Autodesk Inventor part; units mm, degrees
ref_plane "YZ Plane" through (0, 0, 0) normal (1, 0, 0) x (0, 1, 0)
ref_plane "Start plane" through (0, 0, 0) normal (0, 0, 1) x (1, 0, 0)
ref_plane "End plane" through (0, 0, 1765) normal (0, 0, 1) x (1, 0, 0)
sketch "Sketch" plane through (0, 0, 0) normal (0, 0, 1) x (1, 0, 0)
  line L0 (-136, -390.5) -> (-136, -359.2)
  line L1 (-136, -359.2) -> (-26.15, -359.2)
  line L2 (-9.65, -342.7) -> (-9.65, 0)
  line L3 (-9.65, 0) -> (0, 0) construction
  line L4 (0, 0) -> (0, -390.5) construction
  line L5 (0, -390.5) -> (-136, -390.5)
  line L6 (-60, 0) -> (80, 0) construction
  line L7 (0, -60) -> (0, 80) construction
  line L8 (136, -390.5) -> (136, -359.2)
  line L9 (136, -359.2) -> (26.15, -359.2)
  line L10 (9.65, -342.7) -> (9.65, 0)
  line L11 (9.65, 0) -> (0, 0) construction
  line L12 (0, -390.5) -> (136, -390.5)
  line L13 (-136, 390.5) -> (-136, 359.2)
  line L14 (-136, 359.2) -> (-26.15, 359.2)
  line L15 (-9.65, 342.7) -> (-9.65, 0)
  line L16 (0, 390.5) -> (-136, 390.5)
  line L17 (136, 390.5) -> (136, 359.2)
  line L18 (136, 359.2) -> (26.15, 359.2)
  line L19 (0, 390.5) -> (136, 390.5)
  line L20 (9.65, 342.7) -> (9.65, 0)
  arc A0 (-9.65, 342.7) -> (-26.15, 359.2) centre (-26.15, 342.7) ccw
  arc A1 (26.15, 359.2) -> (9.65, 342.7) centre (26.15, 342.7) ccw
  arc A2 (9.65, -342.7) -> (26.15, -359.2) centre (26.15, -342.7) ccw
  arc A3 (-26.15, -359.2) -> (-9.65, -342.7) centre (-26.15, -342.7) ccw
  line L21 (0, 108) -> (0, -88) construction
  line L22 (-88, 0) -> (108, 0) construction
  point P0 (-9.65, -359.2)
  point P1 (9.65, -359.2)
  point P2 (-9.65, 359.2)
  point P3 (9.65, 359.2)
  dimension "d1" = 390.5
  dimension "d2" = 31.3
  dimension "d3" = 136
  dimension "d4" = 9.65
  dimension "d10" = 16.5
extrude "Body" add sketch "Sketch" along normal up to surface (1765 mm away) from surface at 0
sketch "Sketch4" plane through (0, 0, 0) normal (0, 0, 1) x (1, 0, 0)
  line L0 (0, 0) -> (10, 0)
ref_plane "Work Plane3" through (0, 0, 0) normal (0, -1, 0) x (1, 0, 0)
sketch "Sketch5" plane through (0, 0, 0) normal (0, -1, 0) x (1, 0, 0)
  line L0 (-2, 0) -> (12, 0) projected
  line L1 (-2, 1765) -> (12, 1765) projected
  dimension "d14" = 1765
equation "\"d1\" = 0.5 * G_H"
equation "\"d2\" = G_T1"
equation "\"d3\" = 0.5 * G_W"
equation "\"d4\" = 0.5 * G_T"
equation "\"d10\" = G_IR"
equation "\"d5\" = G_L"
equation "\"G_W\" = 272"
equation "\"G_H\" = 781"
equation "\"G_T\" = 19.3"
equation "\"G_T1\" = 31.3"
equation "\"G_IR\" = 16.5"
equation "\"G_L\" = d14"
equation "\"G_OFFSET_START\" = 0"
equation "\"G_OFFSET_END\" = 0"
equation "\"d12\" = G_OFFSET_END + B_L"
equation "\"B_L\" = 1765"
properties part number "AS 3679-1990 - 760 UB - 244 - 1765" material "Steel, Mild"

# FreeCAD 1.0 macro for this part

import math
import FreeCAD as App
import Part
import Sketcher
Q = App.Units.Quantity

doc = App.newDocument("Part")
body = doc.addObject("PartDesign::Body", "Body")

sketch1 = doc.addObject("Sketcher::SketchObject", "Sketch")
body.addObject(sketch1)
sketch1.AttachmentSupport = (doc.XY_Plane, [""])
sketch1.MapMode = "FlatFace"
sketch1.addGeometry(Part.LineSegment(App.Vector(-136, -359, 0), App.Vector(-136, -390, 0)), False)
sketch1.addGeometry(Part.LineSegment(App.Vector(-136, -390, 0), App.Vector(136, -390, 0)), False)
sketch1.addGeometry(Part.LineSegment(App.Vector(136, -390, 0), App.Vector(136, -359, 0)), False)
sketch1.addGeometry(Part.LineSegment(App.Vector(136, -359, 0), App.Vector(26, -359, 0)), False)
sketch1.addGeometry(Part.ArcOfCircle(Part.Circle(App.Vector(26, -343, 0), App.Vector(0, 0, 1), 16), math.radians(180), math.radians(270)), False)
sketch1.addGeometry(Part.LineSegment(App.Vector(10, -343, 0), App.Vector(10, 343, 0)), False)
sketch1.addGeometry(Part.ArcOfCircle(Part.Circle(App.Vector(26, 343, 0), App.Vector(0, 0, 1), 16), math.radians(90), math.radians(180)), False)
sketch1.addGeometry(Part.LineSegment(App.Vector(26, 359, 0), App.Vector(136, 359, 0)), False)
sketch1.addGeometry(Part.LineSegment(App.Vector(136, 359, 0), App.Vector(136, 390, 0)), False)
sketch1.addGeometry(Part.LineSegment(App.Vector(136, 390, 0), App.Vector(-136, 390, 0)), False)
sketch1.addGeometry(Part.LineSegment(App.Vector(-136, 390, 0), App.Vector(-136, 359, 0)), False)
sketch1.addGeometry(Part.LineSegment(App.Vector(-136, 359, 0), App.Vector(-26, 359, 0)), False)
sketch1.addGeometry(Part.ArcOfCircle(Part.Circle(App.Vector(-26, 343, 0), App.Vector(0, 0, 1), 16), math.radians(0), math.radians(90)), False)
sketch1.addGeometry(Part.LineSegment(App.Vector(-10, 343, 0), App.Vector(-10, -343, 0)), False)
sketch1.addGeometry(Part.ArcOfCircle(Part.Circle(App.Vector(-26, -343, 0), App.Vector(0, 0, 1), 16), math.radians(-90), math.radians(0)), False)
sketch1.addGeometry(Part.LineSegment(App.Vector(-26, -359, 0), App.Vector(-136, -359, 0)), False)
sketch1.addConstraint(Sketcher.Constraint("Coincident", 0, 2, 1, 1))
sketch1.addConstraint(Sketcher.Constraint("Coincident", 1, 2, 2, 1))
sketch1.addConstraint(Sketcher.Constraint("Coincident", 2, 2, 3, 1))
sketch1.addConstraint(Sketcher.Constraint("Tangent", 3, 2, 4, 2))
sketch1.addConstraint(Sketcher.Constraint("Tangent", 4, 1, 5, 1))
sketch1.addConstraint(Sketcher.Constraint("Tangent", 5, 2, 6, 2))
sketch1.addConstraint(Sketcher.Constraint("Tangent", 6, 1, 7, 1))
sketch1.addConstraint(Sketcher.Constraint("Coincident", 7, 2, 8, 1))
sketch1.addConstraint(Sketcher.Constraint("Coincident", 8, 2, 9, 1))
sketch1.addConstraint(Sketcher.Constraint("Coincident", 9, 2, 10, 1))
sketch1.addConstraint(Sketcher.Constraint("Coincident", 10, 2, 11, 1))
sketch1.addConstraint(Sketcher.Constraint("Tangent", 11, 2, 12, 2))
sketch1.addConstraint(Sketcher.Constraint("Tangent", 12, 1, 13, 1))
sketch1.addConstraint(Sketcher.Constraint("Tangent", 13, 2, 14, 2))
sketch1.addConstraint(Sketcher.Constraint("Tangent", 14, 1, 15, 1))
sketch1.addConstraint(Sketcher.Constraint("Coincident", 15, 2, 0, 1))
sketch1.addConstraint(Sketcher.Constraint("Vertical", 0))
sketch1.addConstraint(Sketcher.Constraint("Horizontal", 1))
sketch1.addConstraint(Sketcher.Constraint("Vertical", 2))
sketch1.addConstraint(Sketcher.Constraint("Horizontal", 3))
sketch1.addConstraint(Sketcher.Constraint("Vertical", 5))
sketch1.addConstraint(Sketcher.Constraint("Horizontal", 7))
sketch1.addConstraint(Sketcher.Constraint("Vertical", 8))
sketch1.addConstraint(Sketcher.Constraint("Horizontal", 9))
sketch1.addConstraint(Sketcher.Constraint("Vertical", 10))
sketch1.addConstraint(Sketcher.Constraint("Horizontal", 11))
sketch1.addConstraint(Sketcher.Constraint("Vertical", 13))
sketch1.addConstraint(Sketcher.Constraint("Horizontal", 15))
sketch1.addConstraint(Sketcher.Constraint("Equal", 4, 6))
sketch1.addConstraint(Sketcher.Constraint("Equal", 6, 12))
sketch1.addConstraint(Sketcher.Constraint("Equal", 12, 14))
sketch1.addConstraint(Sketcher.Constraint("Symmetric", 4, 3, 12, 3, -1, 1))
sketch1.addConstraint(Sketcher.Constraint("Symmetric", 0, 2, 8, 2, -1, 1))
sketch1.addConstraint(Sketcher.Constraint("Symmetric", 7, 2, 10, 2, -2))
sketch1.addConstraint(Sketcher.Constraint("Symmetric", 2, 2, 15, 2, -2))
sketch1.addConstraint(Sketcher.Constraint("Radius", 4, Q("16.5 mm")))
sketch1.addConstraint(Sketcher.Constraint("DistanceY", 0, 2, 0, 1, Q("31.3 mm")))
sketch1.addConstraint(Sketcher.Constraint("DistanceX", 0, 2, -1, 1, Q("136 mm")))
sketch1.addConstraint(Sketcher.Constraint("DistanceY", 0, 2, -1, 1, Q("390.5 mm")))
sketch1.addConstraint(Sketcher.Constraint("DistanceX", -1, 1, 4, 1, Q("9.65 mm")))
pad1 = doc.addObject("PartDesign::Pad", "Pad")
body.addObject(pad1)
pad1.Profile = sketch1
pad1.Length = 1765

doc.recompute()
